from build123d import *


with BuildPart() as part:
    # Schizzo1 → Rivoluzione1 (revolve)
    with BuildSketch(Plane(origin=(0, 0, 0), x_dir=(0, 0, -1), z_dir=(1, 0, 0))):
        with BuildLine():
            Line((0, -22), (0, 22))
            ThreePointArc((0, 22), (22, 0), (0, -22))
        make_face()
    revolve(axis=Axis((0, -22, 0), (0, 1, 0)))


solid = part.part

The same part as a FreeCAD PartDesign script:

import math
import FreeCAD as App
import Part
import Sketcher

doc = App.newDocument("Part")
body = doc.addObject("PartDesign::Body", "Body")

# Sketch on YZ plane
sketch1 = body.newObject("Sketcher::SketchObject", "Sketch")
sketch1.AttachmentSupport = (doc.getObject("YZ_Plane"), [""])
sketch1.MapMode = "FlatFace"
sketch1.addGeometry([
    Part.LineSegment(App.Vector(22, 0, 0), App.Vector(-22, 0, 0)),
    Part.ArcOfCircle(Part.Circle(App.Vector(0, 0, 0), App.Vector(0, 0, 1), 22), math.radians(180), math.radians(360)),
], False)
sketch1.addConstraint([
    Sketcher.Constraint("Coincident", 0, 1, 1, 2),
    Sketcher.Constraint("Coincident", 1, 1, 0, 2),
    Sketcher.Constraint("Horizontal", 0),
    Sketcher.Constraint("Coincident", 1, 3, -1, 1),
    Sketcher.Constraint("PointOnObject", 0, 1, -1),
    Sketcher.Constraint("Radius", 1, 22.0),
])
revolution = body.newObject("PartDesign::Revolution", "Revolution")
revolution.Profile = sketch1
revolution.ReferenceAxis = (sketch1, ["H_Axis"])
revolution.Angle = 360

doc.recompute()
